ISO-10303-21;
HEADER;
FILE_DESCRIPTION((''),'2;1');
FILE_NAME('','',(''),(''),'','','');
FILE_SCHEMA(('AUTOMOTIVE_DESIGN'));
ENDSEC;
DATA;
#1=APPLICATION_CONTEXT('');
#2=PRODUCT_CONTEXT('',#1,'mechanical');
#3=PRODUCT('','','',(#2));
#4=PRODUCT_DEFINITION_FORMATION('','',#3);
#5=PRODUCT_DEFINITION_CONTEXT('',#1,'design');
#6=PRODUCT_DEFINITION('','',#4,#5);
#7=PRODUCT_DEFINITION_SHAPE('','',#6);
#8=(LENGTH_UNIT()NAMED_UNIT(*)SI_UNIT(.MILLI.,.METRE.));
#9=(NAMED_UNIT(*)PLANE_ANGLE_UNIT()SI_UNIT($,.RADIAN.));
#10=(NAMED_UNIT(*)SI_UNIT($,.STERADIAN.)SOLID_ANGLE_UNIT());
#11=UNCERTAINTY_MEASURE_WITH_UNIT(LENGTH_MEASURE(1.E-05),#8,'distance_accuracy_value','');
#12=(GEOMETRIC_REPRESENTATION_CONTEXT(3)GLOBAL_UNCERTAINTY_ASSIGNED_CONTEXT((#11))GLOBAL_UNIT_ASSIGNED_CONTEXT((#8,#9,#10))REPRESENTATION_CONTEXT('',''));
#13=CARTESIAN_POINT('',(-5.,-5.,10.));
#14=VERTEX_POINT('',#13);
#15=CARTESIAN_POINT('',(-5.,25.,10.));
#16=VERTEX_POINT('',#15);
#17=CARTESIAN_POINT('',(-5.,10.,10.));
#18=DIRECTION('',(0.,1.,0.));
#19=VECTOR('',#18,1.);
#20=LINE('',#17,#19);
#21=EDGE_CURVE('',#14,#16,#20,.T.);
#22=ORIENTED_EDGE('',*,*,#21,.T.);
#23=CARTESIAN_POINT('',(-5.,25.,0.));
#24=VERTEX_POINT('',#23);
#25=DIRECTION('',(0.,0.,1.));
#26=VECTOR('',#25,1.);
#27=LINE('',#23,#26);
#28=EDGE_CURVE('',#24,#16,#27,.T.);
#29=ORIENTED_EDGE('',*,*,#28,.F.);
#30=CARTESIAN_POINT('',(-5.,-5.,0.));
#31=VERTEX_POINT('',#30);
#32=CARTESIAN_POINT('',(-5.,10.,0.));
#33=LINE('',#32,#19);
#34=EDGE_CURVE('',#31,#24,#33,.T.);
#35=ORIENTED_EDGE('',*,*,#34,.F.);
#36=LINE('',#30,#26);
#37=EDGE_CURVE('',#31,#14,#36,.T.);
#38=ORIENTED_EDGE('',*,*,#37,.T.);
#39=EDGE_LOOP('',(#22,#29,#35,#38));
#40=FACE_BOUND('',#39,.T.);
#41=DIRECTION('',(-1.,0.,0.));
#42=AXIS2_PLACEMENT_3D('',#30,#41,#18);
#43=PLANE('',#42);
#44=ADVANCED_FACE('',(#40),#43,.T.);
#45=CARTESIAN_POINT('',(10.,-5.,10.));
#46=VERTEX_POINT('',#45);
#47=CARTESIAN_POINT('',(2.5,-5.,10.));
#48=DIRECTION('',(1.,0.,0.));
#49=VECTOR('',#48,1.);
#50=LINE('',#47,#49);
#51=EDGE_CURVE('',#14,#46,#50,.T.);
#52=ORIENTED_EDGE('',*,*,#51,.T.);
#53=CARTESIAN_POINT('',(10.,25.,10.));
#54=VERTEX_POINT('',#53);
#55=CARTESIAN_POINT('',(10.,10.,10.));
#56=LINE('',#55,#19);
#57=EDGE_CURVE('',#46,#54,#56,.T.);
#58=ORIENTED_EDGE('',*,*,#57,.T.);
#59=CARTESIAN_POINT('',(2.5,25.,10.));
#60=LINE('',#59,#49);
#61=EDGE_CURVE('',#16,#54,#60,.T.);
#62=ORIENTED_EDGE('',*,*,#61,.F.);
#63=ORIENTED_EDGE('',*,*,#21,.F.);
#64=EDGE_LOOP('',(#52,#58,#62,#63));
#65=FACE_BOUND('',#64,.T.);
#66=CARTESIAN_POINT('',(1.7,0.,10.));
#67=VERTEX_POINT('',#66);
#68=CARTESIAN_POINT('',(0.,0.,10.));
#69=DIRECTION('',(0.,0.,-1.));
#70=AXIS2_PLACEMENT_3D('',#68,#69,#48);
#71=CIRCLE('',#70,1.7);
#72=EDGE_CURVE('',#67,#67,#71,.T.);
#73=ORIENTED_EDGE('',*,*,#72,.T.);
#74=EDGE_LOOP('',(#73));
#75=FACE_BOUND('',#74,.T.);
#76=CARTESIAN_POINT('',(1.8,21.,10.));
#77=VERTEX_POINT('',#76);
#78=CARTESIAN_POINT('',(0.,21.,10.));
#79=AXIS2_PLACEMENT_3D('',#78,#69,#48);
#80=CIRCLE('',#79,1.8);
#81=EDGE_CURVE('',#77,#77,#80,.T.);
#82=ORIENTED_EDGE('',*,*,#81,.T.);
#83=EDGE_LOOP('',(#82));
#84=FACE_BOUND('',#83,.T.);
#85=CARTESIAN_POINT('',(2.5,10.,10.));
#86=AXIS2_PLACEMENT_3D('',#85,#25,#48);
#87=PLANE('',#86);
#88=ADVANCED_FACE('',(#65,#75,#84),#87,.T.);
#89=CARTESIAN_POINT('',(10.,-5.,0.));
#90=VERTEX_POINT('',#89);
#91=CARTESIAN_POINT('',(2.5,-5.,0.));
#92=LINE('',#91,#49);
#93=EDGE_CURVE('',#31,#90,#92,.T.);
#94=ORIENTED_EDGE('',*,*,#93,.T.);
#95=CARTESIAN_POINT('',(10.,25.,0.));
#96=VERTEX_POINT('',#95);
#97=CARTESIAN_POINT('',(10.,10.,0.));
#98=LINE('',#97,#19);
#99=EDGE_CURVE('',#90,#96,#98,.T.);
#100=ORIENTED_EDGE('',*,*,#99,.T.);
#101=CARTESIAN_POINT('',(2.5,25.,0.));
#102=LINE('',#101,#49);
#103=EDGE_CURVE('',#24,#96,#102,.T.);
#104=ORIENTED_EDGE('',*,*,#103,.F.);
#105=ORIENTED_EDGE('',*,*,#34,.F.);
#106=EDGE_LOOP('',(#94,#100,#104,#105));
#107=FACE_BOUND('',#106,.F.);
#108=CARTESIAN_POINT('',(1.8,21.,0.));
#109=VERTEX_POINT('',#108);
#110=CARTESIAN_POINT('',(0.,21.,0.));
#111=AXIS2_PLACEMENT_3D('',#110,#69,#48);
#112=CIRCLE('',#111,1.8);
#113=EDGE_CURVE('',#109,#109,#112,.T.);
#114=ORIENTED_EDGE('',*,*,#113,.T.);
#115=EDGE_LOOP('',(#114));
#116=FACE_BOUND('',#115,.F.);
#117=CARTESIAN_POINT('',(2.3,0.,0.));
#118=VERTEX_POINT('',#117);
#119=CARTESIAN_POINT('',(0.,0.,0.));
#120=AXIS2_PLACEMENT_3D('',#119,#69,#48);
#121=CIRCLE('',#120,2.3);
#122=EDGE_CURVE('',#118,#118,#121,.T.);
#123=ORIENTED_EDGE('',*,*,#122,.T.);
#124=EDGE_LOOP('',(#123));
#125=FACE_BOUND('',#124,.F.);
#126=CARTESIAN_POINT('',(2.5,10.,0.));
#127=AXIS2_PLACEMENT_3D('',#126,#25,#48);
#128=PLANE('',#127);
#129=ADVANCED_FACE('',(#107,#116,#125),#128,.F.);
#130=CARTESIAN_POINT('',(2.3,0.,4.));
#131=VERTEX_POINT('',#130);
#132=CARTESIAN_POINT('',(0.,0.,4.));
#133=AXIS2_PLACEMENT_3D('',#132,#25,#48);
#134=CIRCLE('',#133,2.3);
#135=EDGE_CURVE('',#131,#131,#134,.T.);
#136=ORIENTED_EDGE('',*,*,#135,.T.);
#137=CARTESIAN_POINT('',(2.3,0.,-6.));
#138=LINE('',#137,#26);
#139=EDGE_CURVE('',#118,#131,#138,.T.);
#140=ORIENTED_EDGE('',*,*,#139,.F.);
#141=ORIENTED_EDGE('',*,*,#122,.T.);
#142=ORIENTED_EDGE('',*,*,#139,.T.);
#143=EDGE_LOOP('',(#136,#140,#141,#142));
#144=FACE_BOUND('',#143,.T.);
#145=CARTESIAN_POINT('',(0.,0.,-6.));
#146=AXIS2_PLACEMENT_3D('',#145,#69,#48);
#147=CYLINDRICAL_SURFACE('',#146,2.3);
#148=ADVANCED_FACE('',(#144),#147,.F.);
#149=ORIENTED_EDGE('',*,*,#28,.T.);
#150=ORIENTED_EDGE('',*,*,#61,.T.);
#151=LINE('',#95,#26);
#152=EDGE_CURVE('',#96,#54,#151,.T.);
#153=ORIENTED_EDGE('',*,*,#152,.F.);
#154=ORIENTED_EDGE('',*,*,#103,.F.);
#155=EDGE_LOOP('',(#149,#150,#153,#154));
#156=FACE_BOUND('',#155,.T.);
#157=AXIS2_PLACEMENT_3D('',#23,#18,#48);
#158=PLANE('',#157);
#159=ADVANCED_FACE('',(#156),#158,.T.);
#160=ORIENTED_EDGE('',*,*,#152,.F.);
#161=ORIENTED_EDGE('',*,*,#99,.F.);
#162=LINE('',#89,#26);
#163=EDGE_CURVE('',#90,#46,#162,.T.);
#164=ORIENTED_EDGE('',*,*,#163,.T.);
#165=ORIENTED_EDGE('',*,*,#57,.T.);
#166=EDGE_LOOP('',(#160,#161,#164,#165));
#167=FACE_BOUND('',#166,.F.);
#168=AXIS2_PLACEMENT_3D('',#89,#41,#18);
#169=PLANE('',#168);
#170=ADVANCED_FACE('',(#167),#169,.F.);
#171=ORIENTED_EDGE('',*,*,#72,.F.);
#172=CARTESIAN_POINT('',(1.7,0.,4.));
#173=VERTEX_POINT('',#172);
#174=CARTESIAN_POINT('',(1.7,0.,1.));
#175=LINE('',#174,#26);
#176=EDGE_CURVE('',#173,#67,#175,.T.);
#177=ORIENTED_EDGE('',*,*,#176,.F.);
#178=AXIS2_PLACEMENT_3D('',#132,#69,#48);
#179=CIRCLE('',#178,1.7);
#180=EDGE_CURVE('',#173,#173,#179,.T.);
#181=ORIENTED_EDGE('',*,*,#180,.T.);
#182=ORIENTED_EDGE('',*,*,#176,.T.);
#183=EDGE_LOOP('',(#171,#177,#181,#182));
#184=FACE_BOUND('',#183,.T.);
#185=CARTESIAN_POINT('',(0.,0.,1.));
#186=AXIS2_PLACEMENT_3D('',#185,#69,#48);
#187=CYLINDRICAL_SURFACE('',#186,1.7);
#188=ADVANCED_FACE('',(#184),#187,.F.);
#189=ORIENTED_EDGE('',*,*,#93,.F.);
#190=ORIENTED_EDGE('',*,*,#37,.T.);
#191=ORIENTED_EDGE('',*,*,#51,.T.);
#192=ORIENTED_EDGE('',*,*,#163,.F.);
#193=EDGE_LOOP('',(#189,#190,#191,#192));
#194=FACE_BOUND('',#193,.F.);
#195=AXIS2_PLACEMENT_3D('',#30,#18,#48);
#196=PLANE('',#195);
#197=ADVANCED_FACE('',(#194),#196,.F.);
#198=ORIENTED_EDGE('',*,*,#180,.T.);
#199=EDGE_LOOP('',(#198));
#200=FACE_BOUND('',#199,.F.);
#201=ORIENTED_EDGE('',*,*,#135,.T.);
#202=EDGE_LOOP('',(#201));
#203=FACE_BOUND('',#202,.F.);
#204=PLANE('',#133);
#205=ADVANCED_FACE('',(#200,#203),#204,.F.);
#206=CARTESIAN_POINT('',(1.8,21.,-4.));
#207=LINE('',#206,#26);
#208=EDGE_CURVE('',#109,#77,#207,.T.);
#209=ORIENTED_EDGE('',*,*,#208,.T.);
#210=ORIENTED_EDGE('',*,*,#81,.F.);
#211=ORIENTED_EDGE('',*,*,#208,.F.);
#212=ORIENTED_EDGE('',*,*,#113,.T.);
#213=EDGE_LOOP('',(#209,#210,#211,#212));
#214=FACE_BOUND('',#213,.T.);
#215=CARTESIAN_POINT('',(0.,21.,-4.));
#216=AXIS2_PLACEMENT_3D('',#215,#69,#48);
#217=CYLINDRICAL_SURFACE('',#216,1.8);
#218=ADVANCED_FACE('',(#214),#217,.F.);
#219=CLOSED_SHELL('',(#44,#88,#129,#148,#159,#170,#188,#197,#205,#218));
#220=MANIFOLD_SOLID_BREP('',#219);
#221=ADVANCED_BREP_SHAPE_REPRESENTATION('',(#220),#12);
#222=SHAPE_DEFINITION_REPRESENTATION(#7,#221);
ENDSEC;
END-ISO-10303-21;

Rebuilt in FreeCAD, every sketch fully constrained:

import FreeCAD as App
import Part
import Sketcher
Q = App.Units.Quantity


def add_polygon(sketch, points):
    """Adds a closed chain of lines whose ends are joined by coincident constraints."""
    first, n = sketch.GeometryCount, len(points)
    for a, b in zip(points, points[1:] + points[:1]):
        sketch.addGeometry(Part.LineSegment(App.Vector(*a, 0), App.Vector(*b, 0)), False)
    for i in range(n):
        sketch.addConstraint(Sketcher.Constraint("Coincident", first + i, 2, first + (i + 1) % n, 1))

doc = App.newDocument("Part")
body = doc.addObject("PartDesign::Body", "Body")

# Sketch on XY plane
sketch1 = body.newObject("Sketcher::SketchObject", "Sketch")
sketch1.AttachmentSupport = (doc.getObject("XY_Plane"), [""])
sketch1.MapMode = "FlatFace"
sketch1.AttachmentOffset = App.Placement(App.Vector(0, 0, -4), App.Rotation())
sketch1.addGeometry(Part.Circle(App.Vector(0, 21, 0), App.Vector(0, 0, 1), 1.8), False)
sketch1.addConstraint([
    Sketcher.Constraint("PointOnObject", 0, 3, -2),
    Sketcher.Constraint("Diameter", 0, Q("3.6 mm")),
    Sketcher.Constraint("DistanceY", -1, 1, 0, 3, Q("21 mm")),
])
pad1 = body.newObject("PartDesign::Pad", "Pad")
pad1.Profile = sketch1
pad1.Length = 20
body2 = doc.addObject("PartDesign::Body", "Body001")

# Sketch on XY plane
sketch2 = body2.newObject("Sketcher::SketchObject", "Sketch001")
sketch2.AttachmentSupport = (doc.getObject("XY_Plane001"), [""])
sketch2.MapMode = "FlatFace"
sketch2.addGeometry(Part.Circle(App.Vector(0, 0, 0), App.Vector(0, 0, 1), 2.3), False)
sketch2.addConstraint([
    Sketcher.Constraint("Coincident", 0, 3, -1, 1),
    Sketcher.Constraint("Diameter", 0, Q("4.6 mm")),
])
pad2 = body2.newObject("PartDesign::Pad", "Pad001")
pad2.Profile = sketch2
pad2.Length = 10
body3 = doc.addObject("PartDesign::Body", "Body002")

# Sketch on XY plane
sketch3 = body3.newObject("Sketcher::SketchObject", "Sketch002")
sketch3.AttachmentSupport = (doc.getObject("XY_Plane002"), [""])
sketch3.MapMode = "FlatFace"
sketch3.AttachmentOffset = App.Placement(App.Vector(0, 0, 7), App.Rotation())
sketch3.addGeometry(Part.Circle(App.Vector(0, 0, 0), App.Vector(0, 0, 1), 1.7), False)
sketch3.addConstraint([
    Sketcher.Constraint("Coincident", 0, 3, -1, 1),
    Sketcher.Constraint("Diameter", 0, Q("3.4 mm")),
])
pad3 = body3.newObject("PartDesign::Pad", "Pad002")
pad3.Profile = sketch3
pad3.Length = 10
doc.recompute()

boolean = body3.newObject("PartDesign::Boolean", "Boolean")
boolean.Type = "Fuse"
boolean.addObjects([body2])
body4 = doc.addObject("PartDesign::Body", "Body003")
body4.AllowCompound = True
doc.recompute()

body3.Placement = App.Placement(App.Vector(0, 0, -6), App.Rotation(App.Vector(0, 0, 1), 0))
boolean2 = body4.newObject("PartDesign::Boolean", "Boolean001")
boolean2.Type = "Fuse"
boolean2.addObjects([body3])
doc.recompute()

boolean3 = body4.newObject("PartDesign::Boolean", "Boolean002")
boolean3.Type = "Fuse"
boolean3.addObjects([body])
body5 = doc.addObject("PartDesign::Body", "Body004")

# Sketch on XY plane
sketch4 = body5.newObject("Sketcher::SketchObject", "Sketch003")
sketch4.AttachmentSupport = (doc.getObject("XY_Plane004"), [""])
sketch4.MapMode = "FlatFace"
add_polygon(sketch4, [(-5, 25), (-5, -5), (10, -5), (10, 25)])  # lines 0-3
sketch4.addConstraint([
    Sketcher.Constraint("Vertical", 0),
    Sketcher.Constraint("Horizontal", 1),
    Sketcher.Constraint("Vertical", 2),
    Sketcher.Constraint("Horizontal", 3),
    Sketcher.Constraint("DistanceX", 1, 1, 1, 2, Q("15 mm")),
    Sketcher.Constraint("DistanceY", 0, 2, 0, 1, Q("30 mm")),
    Sketcher.Constraint("DistanceX", 0, 2, -1, 1, Q("5 mm")),
    Sketcher.Constraint("DistanceY", 0, 2, -1, 1, Q("5 mm")),
])
pad4 = body5.newObject("PartDesign::Pad", "Pad003")
pad4.Profile = sketch4
pad4.Length = 10
doc.recompute()

boolean4 = body5.newObject("PartDesign::Boolean", "Boolean003")
boolean4.Type = "Cut"
boolean4.addObjects([body4])

doc.recompute()
